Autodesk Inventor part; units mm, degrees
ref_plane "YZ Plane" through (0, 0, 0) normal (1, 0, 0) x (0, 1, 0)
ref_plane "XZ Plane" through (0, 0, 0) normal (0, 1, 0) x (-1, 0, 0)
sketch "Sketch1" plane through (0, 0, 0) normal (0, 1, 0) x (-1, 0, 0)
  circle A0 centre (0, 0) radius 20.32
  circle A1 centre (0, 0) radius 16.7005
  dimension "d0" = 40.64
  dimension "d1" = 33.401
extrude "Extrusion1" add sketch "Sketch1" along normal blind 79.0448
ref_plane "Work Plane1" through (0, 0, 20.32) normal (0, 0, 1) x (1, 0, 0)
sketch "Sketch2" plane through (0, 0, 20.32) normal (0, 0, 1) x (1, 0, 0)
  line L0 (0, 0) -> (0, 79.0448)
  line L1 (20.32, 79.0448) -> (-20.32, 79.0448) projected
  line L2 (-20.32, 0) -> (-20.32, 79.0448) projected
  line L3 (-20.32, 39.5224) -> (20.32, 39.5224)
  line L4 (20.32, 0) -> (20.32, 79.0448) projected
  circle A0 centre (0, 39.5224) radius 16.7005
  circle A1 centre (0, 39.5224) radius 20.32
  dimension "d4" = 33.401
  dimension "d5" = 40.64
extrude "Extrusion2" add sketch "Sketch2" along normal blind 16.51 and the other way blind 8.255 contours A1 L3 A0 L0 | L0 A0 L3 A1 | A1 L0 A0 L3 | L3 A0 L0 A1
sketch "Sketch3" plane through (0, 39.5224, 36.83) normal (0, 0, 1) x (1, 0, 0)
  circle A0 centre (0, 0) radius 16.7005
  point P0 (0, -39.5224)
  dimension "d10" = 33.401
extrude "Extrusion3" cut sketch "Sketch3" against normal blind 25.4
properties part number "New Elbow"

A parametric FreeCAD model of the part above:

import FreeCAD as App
import Part
import Sketcher

V = App.Vector
Q = App.Units.Quantity

doc = App.newDocument("Part")
body = doc.addObject("PartDesign::Body", "Body")

# Sketch on XZ plane
sketch1 = body.newObject("Sketcher::SketchObject", "Sketch")
sketch1.AttachmentSupport = (doc.getObject("XZ_Plane"), [""])
sketch1.MapMode = "FlatFace"
sketch1.addGeometry(Part.Circle(V(0, 0, 0), V(0, 0, 1), 20), False)
sketch1.addGeometry(Part.Circle(V(0, 0, 0), V(0, 0, 1), 17), False)
sketch1.addConstraint(Sketcher.Constraint("Coincident", 0, 3, -1, 1))
sketch1.addConstraint(Sketcher.Constraint("Coincident", 1, 3, -1, 1))
sketch1.addConstraint(Sketcher.Constraint("Diameter", 0, Q("1.6 in")))
sketch1.addConstraint(Sketcher.Constraint("Diameter", 1, Q("1.315 in")))
pad1 = body.newObject("PartDesign::Pad", "Pad")
pad1.Profile = sketch1
pad1.Length = Q("3.112 in")
pad1.Reversed = True

# Sketch on XY plane
sketch2 = body.newObject("Sketcher::SketchObject", "Sketch001")
sketch2.AttachmentSupport = (doc.getObject("XY_Plane"), [""])
sketch2.MapMode = "FlatFace"
sketch2.AttachmentOffset = App.Placement(V(0, 0, 0.8 * 25.4), App.Rotation())
sketch2.addGeometry(Part.Circle(V(0, 40, 0), V(0, 0, 1), 20), False)
sketch2.addGeometry(Part.Circle(V(0, 40, 0), V(0, 0, 1), 17), False)
sketch2.addConstraint(Sketcher.Constraint("Coincident", 1, 3, 0, 3))
sketch2.addConstraint(Sketcher.Constraint("PointOnObject", 0, 3, -2))
sketch2.addConstraint(Sketcher.Constraint("Diameter", 0, Q("1.6 in")))
sketch2.addConstraint(Sketcher.Constraint("Diameter", 1, Q("1.315 in")))
sketch2.addConstraint(Sketcher.Constraint("DistanceY", -1, 1, 0, 3, Q("1.556 in")))
pad2 = body.newObject("PartDesign::Pad", "Pad001")
pad2.Profile = sketch2
pad2.Type = "TwoLengths"
pad2.Length = Q("0.65 in")
pad2.Length2 = Q("0.325 in")

# Sketch on XY plane
sketch3 = body.newObject("Sketcher::SketchObject", "Sketch002")
sketch3.AttachmentSupport = (doc.getObject("XY_Plane"), [""])
sketch3.MapMode = "FlatFace"
sketch3.AttachmentOffset = App.Placement(V(0, 0, 1.45 * 25.4), App.Rotation())
sketch3.addGeometry(Part.Circle(V(0, 40, 0), V(0, 0, 1), 17), False)
sketch3.addConstraint(Sketcher.Constraint("PointOnObject", 0, 3, -2))
sketch3.addConstraint(Sketcher.Constraint("Diameter", 0, Q("1.315 in")))
sketch3.addConstraint(Sketcher.Constraint("DistanceY", -1, 1, 0, 3, Q("1.556 in")))
pocket1 = body.newObject("PartDesign::Pocket", "Pocket")
pocket1.Profile = sketch3
pocket1.Length = Q("1 in")

doc.recompute()
